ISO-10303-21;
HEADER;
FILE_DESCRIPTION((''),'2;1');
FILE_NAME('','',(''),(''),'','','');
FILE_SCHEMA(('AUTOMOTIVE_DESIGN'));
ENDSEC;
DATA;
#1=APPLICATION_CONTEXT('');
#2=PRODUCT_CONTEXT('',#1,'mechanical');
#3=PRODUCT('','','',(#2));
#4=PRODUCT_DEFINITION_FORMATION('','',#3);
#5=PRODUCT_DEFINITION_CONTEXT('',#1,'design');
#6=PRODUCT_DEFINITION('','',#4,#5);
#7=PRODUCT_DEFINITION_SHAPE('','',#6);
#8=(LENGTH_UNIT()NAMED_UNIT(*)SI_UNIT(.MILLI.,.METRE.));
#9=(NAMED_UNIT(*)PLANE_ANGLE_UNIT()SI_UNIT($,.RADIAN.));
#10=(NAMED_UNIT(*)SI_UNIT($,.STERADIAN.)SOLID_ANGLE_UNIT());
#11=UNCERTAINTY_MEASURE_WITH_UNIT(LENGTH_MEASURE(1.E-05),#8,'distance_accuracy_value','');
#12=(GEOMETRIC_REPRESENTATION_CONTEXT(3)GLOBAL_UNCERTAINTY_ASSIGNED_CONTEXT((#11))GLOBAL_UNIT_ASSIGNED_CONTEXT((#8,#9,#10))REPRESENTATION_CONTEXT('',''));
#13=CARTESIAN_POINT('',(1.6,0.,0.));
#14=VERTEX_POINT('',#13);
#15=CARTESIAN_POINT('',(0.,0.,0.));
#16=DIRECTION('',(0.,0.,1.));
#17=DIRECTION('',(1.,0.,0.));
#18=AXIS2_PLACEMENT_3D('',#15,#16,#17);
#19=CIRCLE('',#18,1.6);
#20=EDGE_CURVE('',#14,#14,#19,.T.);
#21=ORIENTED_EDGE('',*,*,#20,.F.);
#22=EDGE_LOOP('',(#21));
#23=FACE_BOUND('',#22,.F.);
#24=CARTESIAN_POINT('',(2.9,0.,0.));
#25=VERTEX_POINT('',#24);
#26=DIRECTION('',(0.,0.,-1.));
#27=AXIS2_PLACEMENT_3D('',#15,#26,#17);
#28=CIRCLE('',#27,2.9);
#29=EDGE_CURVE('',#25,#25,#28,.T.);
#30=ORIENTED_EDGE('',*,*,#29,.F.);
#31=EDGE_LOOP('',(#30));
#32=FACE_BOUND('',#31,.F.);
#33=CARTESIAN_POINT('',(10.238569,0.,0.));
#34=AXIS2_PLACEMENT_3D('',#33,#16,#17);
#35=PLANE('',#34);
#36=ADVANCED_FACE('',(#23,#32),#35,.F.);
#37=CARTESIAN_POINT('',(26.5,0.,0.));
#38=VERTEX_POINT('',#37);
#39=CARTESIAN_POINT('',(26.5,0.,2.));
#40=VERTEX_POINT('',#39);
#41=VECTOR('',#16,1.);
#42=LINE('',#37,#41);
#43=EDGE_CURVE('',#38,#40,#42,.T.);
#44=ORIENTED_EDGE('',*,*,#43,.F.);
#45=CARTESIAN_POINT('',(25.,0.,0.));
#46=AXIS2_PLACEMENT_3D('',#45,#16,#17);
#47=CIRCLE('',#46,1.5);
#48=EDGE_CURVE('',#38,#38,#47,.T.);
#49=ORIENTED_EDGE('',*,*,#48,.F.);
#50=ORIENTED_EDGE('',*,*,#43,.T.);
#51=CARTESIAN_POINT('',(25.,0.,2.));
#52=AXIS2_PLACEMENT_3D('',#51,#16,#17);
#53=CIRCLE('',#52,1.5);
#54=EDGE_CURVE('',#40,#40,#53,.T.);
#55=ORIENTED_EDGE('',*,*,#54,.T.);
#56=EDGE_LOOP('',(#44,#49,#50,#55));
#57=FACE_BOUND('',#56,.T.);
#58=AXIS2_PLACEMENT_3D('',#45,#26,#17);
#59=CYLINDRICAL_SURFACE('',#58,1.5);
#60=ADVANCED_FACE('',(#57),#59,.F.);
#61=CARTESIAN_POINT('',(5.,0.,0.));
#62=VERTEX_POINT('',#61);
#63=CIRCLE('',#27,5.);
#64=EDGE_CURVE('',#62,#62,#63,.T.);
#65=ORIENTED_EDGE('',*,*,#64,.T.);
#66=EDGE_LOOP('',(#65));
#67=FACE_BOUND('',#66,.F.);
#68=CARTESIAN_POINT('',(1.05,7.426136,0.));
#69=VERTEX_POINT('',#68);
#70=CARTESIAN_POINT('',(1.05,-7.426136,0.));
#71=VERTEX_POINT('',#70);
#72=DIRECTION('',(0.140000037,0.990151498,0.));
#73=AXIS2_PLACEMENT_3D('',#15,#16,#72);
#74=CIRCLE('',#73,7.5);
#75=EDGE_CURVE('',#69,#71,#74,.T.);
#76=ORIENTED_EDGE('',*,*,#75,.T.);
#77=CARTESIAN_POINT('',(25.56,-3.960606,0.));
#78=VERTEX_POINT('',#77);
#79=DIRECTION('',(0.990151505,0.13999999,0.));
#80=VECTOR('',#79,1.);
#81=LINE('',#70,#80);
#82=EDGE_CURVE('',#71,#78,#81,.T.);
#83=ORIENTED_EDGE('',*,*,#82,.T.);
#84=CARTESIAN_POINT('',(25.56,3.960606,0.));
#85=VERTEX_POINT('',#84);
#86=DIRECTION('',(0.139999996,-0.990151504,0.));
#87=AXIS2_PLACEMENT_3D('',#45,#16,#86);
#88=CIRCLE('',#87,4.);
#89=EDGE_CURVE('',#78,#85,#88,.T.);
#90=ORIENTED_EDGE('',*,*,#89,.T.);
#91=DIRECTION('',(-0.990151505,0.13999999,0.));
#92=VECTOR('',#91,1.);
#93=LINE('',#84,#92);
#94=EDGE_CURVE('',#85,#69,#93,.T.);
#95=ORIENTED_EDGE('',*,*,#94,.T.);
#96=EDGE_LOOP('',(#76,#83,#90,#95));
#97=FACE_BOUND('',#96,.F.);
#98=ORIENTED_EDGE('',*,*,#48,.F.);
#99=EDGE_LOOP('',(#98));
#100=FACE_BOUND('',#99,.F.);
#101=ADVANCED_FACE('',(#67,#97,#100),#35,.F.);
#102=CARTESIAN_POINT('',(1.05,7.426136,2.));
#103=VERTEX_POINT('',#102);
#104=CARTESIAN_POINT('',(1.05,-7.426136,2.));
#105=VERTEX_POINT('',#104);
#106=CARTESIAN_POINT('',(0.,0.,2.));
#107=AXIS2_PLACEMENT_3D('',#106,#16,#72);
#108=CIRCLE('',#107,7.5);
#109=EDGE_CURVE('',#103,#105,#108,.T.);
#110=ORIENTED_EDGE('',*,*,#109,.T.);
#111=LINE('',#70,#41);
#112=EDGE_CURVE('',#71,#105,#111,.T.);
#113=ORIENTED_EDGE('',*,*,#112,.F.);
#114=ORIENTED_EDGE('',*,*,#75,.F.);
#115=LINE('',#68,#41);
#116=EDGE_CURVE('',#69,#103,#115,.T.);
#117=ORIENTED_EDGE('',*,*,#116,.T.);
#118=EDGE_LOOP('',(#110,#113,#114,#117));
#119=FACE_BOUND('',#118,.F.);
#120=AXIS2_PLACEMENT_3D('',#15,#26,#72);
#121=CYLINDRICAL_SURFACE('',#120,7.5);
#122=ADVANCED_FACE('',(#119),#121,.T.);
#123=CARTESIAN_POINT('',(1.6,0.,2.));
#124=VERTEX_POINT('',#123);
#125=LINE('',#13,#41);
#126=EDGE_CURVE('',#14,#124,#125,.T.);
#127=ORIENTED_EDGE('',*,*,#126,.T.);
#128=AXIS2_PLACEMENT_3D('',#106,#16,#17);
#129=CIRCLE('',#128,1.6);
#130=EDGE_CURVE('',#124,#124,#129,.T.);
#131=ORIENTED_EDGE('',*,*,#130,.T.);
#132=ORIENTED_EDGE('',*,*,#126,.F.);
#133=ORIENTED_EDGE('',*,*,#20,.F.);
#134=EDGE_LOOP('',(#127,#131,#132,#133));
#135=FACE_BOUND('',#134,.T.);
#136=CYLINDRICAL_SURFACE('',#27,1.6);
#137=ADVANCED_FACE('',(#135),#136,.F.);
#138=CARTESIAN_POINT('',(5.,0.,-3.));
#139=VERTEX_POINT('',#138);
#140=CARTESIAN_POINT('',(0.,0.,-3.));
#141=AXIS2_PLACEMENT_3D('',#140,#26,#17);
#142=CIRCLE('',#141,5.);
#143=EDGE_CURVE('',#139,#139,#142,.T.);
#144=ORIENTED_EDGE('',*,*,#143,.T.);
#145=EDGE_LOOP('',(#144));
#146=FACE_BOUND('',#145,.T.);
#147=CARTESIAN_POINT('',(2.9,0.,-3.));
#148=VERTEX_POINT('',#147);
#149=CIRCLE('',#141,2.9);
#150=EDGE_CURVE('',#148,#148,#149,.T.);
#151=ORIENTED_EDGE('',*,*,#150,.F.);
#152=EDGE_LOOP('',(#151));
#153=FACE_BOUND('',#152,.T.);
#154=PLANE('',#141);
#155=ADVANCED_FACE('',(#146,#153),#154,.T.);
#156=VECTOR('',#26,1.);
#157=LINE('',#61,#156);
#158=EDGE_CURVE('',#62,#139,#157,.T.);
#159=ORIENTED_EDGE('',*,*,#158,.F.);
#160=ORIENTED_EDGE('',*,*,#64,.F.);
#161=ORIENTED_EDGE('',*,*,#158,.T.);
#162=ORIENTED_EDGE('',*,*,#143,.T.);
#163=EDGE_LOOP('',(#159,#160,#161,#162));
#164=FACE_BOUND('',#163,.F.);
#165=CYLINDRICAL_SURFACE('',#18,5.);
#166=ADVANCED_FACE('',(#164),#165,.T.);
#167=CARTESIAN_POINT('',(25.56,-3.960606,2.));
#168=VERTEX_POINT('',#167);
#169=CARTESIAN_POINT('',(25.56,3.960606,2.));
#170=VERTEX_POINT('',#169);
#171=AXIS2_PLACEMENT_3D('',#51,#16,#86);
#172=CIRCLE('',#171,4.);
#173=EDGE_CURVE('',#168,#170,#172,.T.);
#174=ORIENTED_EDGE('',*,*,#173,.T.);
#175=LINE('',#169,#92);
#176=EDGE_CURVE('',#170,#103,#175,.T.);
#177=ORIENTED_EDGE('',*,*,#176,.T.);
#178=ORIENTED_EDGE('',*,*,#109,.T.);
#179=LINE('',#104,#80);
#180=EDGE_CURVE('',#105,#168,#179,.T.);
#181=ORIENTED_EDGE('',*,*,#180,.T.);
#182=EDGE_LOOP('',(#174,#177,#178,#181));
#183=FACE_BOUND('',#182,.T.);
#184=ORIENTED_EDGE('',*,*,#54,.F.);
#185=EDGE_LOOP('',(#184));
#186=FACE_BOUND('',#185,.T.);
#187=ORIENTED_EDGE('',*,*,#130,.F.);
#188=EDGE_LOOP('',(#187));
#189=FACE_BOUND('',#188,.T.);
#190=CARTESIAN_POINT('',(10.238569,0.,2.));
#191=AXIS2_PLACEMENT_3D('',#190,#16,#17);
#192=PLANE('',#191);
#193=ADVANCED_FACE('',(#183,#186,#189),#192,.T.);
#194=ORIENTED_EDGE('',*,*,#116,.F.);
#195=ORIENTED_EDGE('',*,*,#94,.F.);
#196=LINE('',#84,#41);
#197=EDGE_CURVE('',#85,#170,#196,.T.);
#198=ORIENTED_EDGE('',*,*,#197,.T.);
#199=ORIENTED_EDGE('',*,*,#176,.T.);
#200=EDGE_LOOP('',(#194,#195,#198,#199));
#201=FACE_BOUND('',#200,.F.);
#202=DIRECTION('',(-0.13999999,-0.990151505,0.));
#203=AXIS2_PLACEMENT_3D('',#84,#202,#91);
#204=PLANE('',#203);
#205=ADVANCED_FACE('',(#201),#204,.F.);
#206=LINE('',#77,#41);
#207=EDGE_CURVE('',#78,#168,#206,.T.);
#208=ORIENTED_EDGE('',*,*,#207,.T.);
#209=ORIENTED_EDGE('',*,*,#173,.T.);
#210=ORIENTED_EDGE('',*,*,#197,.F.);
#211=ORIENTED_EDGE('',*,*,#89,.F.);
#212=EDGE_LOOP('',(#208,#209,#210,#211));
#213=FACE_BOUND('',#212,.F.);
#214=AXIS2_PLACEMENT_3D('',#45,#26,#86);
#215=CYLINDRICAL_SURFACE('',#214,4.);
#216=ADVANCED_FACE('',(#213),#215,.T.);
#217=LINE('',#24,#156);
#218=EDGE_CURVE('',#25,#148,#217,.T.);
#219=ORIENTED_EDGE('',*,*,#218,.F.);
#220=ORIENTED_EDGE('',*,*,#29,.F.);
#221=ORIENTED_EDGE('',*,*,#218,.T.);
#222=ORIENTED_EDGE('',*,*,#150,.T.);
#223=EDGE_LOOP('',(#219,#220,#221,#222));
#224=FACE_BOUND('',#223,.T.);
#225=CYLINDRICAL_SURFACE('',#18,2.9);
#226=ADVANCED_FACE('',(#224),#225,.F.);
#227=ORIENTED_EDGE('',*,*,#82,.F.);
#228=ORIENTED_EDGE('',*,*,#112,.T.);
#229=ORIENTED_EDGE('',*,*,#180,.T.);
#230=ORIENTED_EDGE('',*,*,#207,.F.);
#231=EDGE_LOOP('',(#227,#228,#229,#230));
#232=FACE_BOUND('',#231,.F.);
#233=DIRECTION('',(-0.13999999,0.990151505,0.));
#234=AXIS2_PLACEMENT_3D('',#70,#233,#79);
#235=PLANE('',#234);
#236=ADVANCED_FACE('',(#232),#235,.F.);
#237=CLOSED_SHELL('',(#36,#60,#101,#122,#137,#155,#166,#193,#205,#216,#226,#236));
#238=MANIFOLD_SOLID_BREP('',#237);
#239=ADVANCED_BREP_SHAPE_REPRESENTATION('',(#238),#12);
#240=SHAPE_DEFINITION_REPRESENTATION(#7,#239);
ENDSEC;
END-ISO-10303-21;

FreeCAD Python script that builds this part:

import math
import FreeCAD as App
import Part
import Sketcher

doc = App.newDocument("Part")
body = doc.addObject("PartDesign::Body", "Body")

# Sketch on XY plane
sketch1 = body.newObject("Sketcher::SketchObject", "Sketch")
sketch1.AttachmentSupport = (doc.getObject("XY_Plane"), [""])
sketch1.MapMode = "FlatFace"
sketch1.addGeometry(Part.LineSegment(App.Vector(25.56, 3.960606, 0), App.Vector(1.05, 7.426136, 0)), False)
sketch1.addGeometry(Part.ArcOfCircle(Part.Circle(App.Vector(0, 0, 0), App.Vector(0, 0, 1), 7.5), math.radians(81.952152), math.radians(278.047848)), False)
sketch1.addGeometry(Part.LineSegment(App.Vector(1.05, -7.426136, 0), App.Vector(25.56, -3.960606, 0)), False)
sketch1.addGeometry(Part.ArcOfCircle(Part.Circle(App.Vector(25, 0, 0), App.Vector(0, 0, 1), 4), math.radians(-81.952154), math.radians(81.952154)), False)
sketch1.addGeometry(Part.Circle(App.Vector(0, 0, 0), App.Vector(0, 0, 1), 1.6), False)
sketch1.addGeometry(Part.Circle(App.Vector(25, 0, 0), App.Vector(0, 0, 1), 1.5), False)
sketch1.addConstraint(Sketcher.Constraint("Tangent", 0, 2, 1, 1))
sketch1.addConstraint(Sketcher.Constraint("Tangent", 1, 2, 2, 1))
sketch1.addConstraint(Sketcher.Constraint("Tangent", 2, 2, 3, 1))
sketch1.addConstraint(Sketcher.Constraint("Tangent", 3, 2, 0, 1))
sketch1.addConstraint(Sketcher.Constraint("Coincident", 1, 3, -1, 1))
sketch1.addConstraint(Sketcher.Constraint("Coincident", 4, 3, -1, 1))
sketch1.addConstraint(Sketcher.Constraint("Coincident", 5, 3, 3, 3))
sketch1.addConstraint(Sketcher.Constraint("PointOnObject", 3, 3, -1))
sketch1.addConstraint(Sketcher.Constraint("Diameter", 5, 3.0))
sketch1.addConstraint(Sketcher.Constraint("Radius", 3, 4.0))
sketch1.addConstraint(Sketcher.Constraint("Diameter", 4, 3.2))
sketch1.addConstraint(Sketcher.Constraint("Radius", 1, 7.5))
sketch1.addConstraint(Sketcher.Constraint("DistanceX", -1, 1, 3, 3, 25.0))
pad1 = body.newObject("PartDesign::Pad", "Pad")
pad1.Profile = sketch1
pad1.Length = 2

# Sketch on XY plane
sketch2 = body.newObject("Sketcher::SketchObject", "Sketch001")
sketch2.AttachmentSupport = (doc.getObject("XY_Plane"), [""])
sketch2.MapMode = "FlatFace"
sketch2.addGeometry(Part.Circle(App.Vector(0, 0, 0), App.Vector(0, 0, 1), 5), False)
sketch2.addGeometry(Part.Circle(App.Vector(0, 0, 0), App.Vector(0, 0, 1), 2.9), False)
sketch2.addConstraint(Sketcher.Constraint("Coincident", 0, 3, -1, 1))
sketch2.addConstraint(Sketcher.Constraint("Coincident", 1, 3, -1, 1))
sketch2.addConstraint(Sketcher.Constraint("Diameter", 0, 10.0))
sketch2.addConstraint(Sketcher.Constraint("Diameter", 1, 5.8))
pad2 = body.newObject("PartDesign::Pad", "Pad001")
pad2.Profile = sketch2
pad2.Length = 3
pad2.Reversed = True

doc.recompute()
